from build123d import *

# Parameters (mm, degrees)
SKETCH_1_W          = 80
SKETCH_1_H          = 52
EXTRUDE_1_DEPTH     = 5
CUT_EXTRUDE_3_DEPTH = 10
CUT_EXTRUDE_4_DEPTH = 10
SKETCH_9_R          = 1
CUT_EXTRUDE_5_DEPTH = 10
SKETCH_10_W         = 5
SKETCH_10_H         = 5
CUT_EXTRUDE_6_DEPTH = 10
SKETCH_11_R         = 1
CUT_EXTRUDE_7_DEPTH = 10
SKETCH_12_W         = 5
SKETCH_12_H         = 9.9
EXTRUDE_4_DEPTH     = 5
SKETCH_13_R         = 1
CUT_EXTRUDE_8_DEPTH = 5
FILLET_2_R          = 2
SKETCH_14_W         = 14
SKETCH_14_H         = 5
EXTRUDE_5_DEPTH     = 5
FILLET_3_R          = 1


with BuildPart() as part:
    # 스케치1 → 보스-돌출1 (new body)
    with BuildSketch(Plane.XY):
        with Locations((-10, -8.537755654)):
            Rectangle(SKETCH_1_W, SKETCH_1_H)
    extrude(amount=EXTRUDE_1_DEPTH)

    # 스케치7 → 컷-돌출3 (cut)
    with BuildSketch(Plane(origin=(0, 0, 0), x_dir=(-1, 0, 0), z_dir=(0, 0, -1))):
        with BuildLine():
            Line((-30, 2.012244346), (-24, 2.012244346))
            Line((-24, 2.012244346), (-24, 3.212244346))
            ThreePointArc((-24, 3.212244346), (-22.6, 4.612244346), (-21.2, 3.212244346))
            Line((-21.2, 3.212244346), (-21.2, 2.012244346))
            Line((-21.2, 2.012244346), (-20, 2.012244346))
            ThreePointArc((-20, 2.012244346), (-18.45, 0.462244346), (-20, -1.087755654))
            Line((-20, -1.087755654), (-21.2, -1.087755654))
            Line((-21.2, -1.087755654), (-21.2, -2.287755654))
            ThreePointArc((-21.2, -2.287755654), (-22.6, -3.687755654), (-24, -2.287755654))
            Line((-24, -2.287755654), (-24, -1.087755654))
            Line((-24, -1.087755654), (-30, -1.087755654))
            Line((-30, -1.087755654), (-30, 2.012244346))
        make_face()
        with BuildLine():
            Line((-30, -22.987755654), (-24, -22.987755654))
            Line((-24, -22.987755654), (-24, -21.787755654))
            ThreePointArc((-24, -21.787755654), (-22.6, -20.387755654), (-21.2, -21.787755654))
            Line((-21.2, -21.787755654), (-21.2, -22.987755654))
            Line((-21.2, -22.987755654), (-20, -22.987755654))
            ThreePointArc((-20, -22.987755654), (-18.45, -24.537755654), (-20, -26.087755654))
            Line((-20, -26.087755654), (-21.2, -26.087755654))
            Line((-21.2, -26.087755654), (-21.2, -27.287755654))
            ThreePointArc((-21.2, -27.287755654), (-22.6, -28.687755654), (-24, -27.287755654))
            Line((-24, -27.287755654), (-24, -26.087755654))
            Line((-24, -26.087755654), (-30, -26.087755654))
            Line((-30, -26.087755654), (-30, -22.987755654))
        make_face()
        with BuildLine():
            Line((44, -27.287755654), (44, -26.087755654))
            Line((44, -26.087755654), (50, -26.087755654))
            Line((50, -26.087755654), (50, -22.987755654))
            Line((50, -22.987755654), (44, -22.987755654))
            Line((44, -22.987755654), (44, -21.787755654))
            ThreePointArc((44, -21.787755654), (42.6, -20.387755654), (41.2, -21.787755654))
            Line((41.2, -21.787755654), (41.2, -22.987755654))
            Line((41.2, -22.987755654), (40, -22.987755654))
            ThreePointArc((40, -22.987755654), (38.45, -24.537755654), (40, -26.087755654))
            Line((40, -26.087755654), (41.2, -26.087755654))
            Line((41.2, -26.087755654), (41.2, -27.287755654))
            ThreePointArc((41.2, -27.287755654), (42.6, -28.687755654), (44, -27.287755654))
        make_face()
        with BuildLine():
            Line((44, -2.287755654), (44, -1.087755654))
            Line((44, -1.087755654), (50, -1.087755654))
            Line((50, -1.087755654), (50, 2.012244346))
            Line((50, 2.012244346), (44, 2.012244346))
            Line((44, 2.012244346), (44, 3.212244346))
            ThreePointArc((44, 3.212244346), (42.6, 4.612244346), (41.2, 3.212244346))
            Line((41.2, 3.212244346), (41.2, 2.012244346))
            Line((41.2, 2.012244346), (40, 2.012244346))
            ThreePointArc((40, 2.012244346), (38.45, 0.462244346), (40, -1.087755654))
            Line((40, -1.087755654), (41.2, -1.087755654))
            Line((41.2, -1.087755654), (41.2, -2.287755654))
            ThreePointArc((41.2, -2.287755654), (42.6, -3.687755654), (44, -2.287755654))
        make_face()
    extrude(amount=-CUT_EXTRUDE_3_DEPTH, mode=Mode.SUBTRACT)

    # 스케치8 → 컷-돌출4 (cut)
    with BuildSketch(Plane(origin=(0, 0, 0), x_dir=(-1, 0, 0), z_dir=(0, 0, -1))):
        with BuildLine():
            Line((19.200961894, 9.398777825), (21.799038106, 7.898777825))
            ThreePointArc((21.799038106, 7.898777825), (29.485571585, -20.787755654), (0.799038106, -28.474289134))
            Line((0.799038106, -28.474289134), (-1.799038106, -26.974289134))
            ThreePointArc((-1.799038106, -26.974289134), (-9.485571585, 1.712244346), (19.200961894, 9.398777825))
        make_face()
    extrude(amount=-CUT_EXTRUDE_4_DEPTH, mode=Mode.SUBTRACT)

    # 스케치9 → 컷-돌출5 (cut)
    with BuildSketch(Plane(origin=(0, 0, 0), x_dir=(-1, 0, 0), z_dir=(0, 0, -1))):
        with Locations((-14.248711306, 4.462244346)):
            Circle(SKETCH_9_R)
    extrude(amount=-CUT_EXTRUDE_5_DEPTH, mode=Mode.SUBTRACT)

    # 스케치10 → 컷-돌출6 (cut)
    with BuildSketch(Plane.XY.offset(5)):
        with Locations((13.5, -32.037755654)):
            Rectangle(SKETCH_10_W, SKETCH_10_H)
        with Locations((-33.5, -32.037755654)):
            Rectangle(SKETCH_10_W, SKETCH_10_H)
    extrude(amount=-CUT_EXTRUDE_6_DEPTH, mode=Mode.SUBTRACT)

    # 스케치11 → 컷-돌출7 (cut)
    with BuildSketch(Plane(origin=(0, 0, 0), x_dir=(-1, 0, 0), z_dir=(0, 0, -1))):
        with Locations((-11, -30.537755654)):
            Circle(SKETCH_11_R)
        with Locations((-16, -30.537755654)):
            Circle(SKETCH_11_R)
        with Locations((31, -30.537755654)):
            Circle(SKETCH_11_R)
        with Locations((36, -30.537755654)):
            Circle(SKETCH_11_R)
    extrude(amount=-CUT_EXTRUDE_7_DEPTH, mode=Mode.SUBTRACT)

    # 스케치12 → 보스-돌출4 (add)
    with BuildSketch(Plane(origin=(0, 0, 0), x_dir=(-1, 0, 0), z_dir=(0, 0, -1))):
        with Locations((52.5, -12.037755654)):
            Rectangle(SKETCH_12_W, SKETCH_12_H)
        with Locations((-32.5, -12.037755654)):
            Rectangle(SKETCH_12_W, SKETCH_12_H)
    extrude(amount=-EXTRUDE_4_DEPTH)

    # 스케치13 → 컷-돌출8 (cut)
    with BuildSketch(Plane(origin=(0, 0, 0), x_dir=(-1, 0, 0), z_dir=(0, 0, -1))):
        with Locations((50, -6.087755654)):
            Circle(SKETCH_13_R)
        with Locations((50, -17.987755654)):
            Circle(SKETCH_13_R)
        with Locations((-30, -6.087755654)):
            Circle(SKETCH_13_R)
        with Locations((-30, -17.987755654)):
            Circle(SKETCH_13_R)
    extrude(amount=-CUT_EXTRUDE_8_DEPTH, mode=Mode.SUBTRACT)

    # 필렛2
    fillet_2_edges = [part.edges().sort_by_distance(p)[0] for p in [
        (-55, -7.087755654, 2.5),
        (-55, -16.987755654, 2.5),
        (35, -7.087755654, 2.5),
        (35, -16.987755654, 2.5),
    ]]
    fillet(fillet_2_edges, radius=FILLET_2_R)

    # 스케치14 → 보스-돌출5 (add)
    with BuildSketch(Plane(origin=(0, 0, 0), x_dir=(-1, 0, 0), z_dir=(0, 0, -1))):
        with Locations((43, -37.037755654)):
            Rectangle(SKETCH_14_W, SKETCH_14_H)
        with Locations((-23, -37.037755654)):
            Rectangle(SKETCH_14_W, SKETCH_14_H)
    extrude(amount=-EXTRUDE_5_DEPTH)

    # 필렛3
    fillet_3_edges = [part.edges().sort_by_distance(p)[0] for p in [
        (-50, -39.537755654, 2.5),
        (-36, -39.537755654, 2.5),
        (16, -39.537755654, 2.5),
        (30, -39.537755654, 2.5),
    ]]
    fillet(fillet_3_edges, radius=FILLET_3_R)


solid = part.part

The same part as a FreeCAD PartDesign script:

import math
import FreeCAD as App
import Part
import Sketcher
from FreeCAD import Vector
Q = App.Units.Quantity


def edges_at(feature, points):
    """Names of the edges that pass closest to the given points."""
    edges = feature.Shape.Edges
    near = lambda p: min(range(len(edges)), key=lambda i: edges[i].distToShape(Part.Vertex(*p))[0])
    return sorted({f"Edge{near(p) + 1}" for p in points})


def add_polygon(sketch, points):
    """Adds a closed chain of lines whose ends are joined by coincident constraints."""
    first, n = sketch.GeometryCount, len(points)
    for a, b in zip(points, points[1:] + points[:1]):
        sketch.addGeometry(Part.LineSegment(App.Vector(*a, 0), App.Vector(*b, 0)), False)
    for i in range(n):
        sketch.addConstraint(Sketcher.Constraint("Coincident", first + i, 2, first + (i + 1) % n, 1))

doc = App.newDocument("Part")
body = doc.addObject("PartDesign::Body", "Body")

# Sketch on XY plane
sketch1 = body.newObject("Sketcher::SketchObject", "Sketch")
sketch1.AttachmentSupport = (doc.getObject("XY_Plane"), [""])
sketch1.MapMode = "FlatFace"
add_polygon(sketch1, [(-50, 17), (-50, -35), (30, -35), (30, 17)])  # lines 0-3
sketch1.addConstraint(Sketcher.Constraint("Vertical", 0))
sketch1.addConstraint(Sketcher.Constraint("Horizontal", 1))
sketch1.addConstraint(Sketcher.Constraint("Vertical", 2))
sketch1.addConstraint(Sketcher.Constraint("Horizontal", 3))
sketch1.addConstraint(Sketcher.Constraint("DistanceX", 1, 1, 1, 2, Q("80 mm")))
sketch1.addConstraint(Sketcher.Constraint("DistanceY", 0, 2, 0, 1, Q("52 mm")))
sketch1.addConstraint(Sketcher.Constraint("DistanceX", 0, 2, -1, 1, Q("50 mm")))
sketch1.addConstraint(Sketcher.Constraint("DistanceY", 0, 2, -1, 1, Q("34.537756 mm")))
pad1 = body.newObject("PartDesign::Pad", "Pad")
pad1.Profile = sketch1
pad1.Length = 5

# Sketch on XY plane
sketch2 = body.newObject("Sketcher::SketchObject", "Sketch001")
sketch2.AttachmentSupport = (doc.getObject("XY_Plane"), [""])
sketch2.MapMode = "FlatFace"
sketch2.addGeometry(Part.LineSegment(Vector(24, 2, 0), Vector(30, 2, 0)), False)
sketch2.addGeometry(Part.LineSegment(Vector(30, 2, 0), Vector(30, -1.1, 0)), False)
sketch2.addGeometry(Part.LineSegment(Vector(30, -1.1, 0), Vector(24, -1.1, 0)), False)
sketch2.addGeometry(Part.LineSegment(Vector(24, -1.1, 0), Vector(24, -2.3, 0)), False)
sketch2.addGeometry(Part.ArcOfCircle(Part.Circle(Vector(22.6, -2.3, 0), Vector(0, 0, 1), 1.4), math.radians(180), math.radians(360)), False)
sketch2.addGeometry(Part.LineSegment(Vector(21.2, -2.3, 0), Vector(21.2, -1.1, 0)), False)
sketch2.addGeometry(Part.LineSegment(Vector(21.2, -1.1, 0), Vector(20, -1.1, 0)), False)
sketch2.addGeometry(Part.ArcOfCircle(Part.Circle(Vector(20, 0.5, 0), Vector(0, 0, 1), 1.6), math.radians(90), math.radians(270)), False)
sketch2.addGeometry(Part.LineSegment(Vector(20, 2, 0), Vector(21.2, 2, 0)), False)
sketch2.addGeometry(Part.LineSegment(Vector(21.2, 2, 0), Vector(21.2, 3.2, 0)), False)
sketch2.addGeometry(Part.ArcOfCircle(Part.Circle(Vector(22.6, 3.2, 0), Vector(0, 0, 1), 1.4), math.radians(0), math.radians(180)), False)
sketch2.addGeometry(Part.LineSegment(Vector(24, 3.2, 0), Vector(24, 2, 0)), False)
sketch2.addGeometry(Part.LineSegment(Vector(24, -23, 0), Vector(30, -23, 0)), False)
sketch2.addGeometry(Part.LineSegment(Vector(30, -23, 0), Vector(30, -26.1, 0)), False)
sketch2.addGeometry(Part.LineSegment(Vector(30, -26.1, 0), Vector(24, -26.1, 0)), False)
sketch2.addGeometry(Part.LineSegment(Vector(24, -26.1, 0), Vector(24, -27.3, 0)), False)
sketch2.addGeometry(Part.ArcOfCircle(Part.Circle(Vector(22.6, -27.3, 0), Vector(0, 0, 1), 1.4), math.radians(180), math.radians(360)), False)
sketch2.addGeometry(Part.LineSegment(Vector(21.2, -27.3, 0), Vector(21.2, -26.1, 0)), False)
sketch2.addGeometry(Part.LineSegment(Vector(21.2, -26.1, 0), Vector(20, -26.1, 0)), False)
sketch2.addGeometry(Part.ArcOfCircle(Part.Circle(Vector(20, -24.5, 0), Vector(0, 0, 1), 1.6), math.radians(90), math.radians(270)), False)
sketch2.addGeometry(Part.LineSegment(Vector(20, -23, 0), Vector(21.2, -23, 0)), False)
sketch2.addGeometry(Part.LineSegment(Vector(21.2, -23, 0), Vector(21.2, -21.8, 0)), False)
sketch2.addGeometry(Part.ArcOfCircle(Part.Circle(Vector(22.6, -21.8, 0), Vector(0, 0, 1), 1.4), math.radians(0), math.radians(180)), False)
sketch2.addGeometry(Part.LineSegment(Vector(24, -21.8, 0), Vector(24, -23, 0)), False)
sketch2.addGeometry(Part.LineSegment(Vector(-44, -27.3, 0), Vector(-44, -26.1, 0)), False)
sketch2.addGeometry(Part.LineSegment(Vector(-44, -26.1, 0), Vector(-50, -26.1, 0)), False)
sketch2.addGeometry(Part.LineSegment(Vector(-50, -26.1, 0), Vector(-50, -23, 0)), False)
sketch2.addGeometry(Part.LineSegment(Vector(-50, -23, 0), Vector(-44, -23, 0)), False)
sketch2.addGeometry(Part.LineSegment(Vector(-44, -23, 0), Vector(-44, -21.8, 0)), False)
sketch2.addGeometry(Part.ArcOfCircle(Part.Circle(Vector(-42.6, -21.8, 0), Vector(0, 0, 1), 1.4), math.radians(0), math.radians(180)), False)
sketch2.addGeometry(Part.LineSegment(Vector(-41.2, -21.8, 0), Vector(-41.2, -23, 0)), False)
sketch2.addGeometry(Part.LineSegment(Vector(-41.2, -23, 0), Vector(-40, -23, 0)), False)
sketch2.addGeometry(Part.ArcOfCircle(Part.Circle(Vector(-40, -24.5, 0), Vector(0, 0, 1), 1.6), math.radians(-90), math.radians(90)), False)
sketch2.addGeometry(Part.LineSegment(Vector(-40, -26.1, 0), Vector(-41.2, -26.1, 0)), False)
sketch2.addGeometry(Part.LineSegment(Vector(-41.2, -26.1, 0), Vector(-41.2, -27.3, 0)), False)
sketch2.addGeometry(Part.ArcOfCircle(Part.Circle(Vector(-42.6, -27.3, 0), Vector(0, 0, 1), 1.4), math.radians(180), math.radians(360)), False)
sketch2.addGeometry(Part.LineSegment(Vector(-44, -2.3, 0), Vector(-44, -1.1, 0)), False)
sketch2.addGeometry(Part.LineSegment(Vector(-44, -1.1, 0), Vector(-50, -1.1, 0)), False)
sketch2.addGeometry(Part.LineSegment(Vector(-50, -1.1, 0), Vector(-50, 2, 0)), False)
sketch2.addGeometry(Part.LineSegment(Vector(-50, 2, 0), Vector(-44, 2, 0)), False)
sketch2.addGeometry(Part.LineSegment(Vector(-44, 2, 0), Vector(-44, 3.2, 0)), False)
sketch2.addGeometry(Part.ArcOfCircle(Part.Circle(Vector(-42.6, 3.2, 0), Vector(0, 0, 1), 1.4), math.radians(0), math.radians(180)), False)
sketch2.addGeometry(Part.LineSegment(Vector(-41.2, 3.2, 0), Vector(-41.2, 2, 0)), False)
sketch2.addGeometry(Part.LineSegment(Vector(-41.2, 2, 0), Vector(-40, 2, 0)), False)
sketch2.addGeometry(Part.ArcOfCircle(Part.Circle(Vector(-40, 0.5, 0), Vector(0, 0, 1), 1.6), math.radians(-90), math.radians(90)), False)
sketch2.addGeometry(Part.LineSegment(Vector(-40, -1.1, 0), Vector(-41.2, -1.1, 0)), False)
sketch2.addGeometry(Part.LineSegment(Vector(-41.2, -1.1, 0), Vector(-41.2, -2.3, 0)), False)
sketch2.addGeometry(Part.ArcOfCircle(Part.Circle(Vector(-42.6, -2.3, 0), Vector(0, 0, 1), 1.4), math.radians(180), math.radians(360)), False)
sketch2.addConstraint(Sketcher.Constraint("Coincident", 0, 2, 1, 1))
sketch2.addConstraint(Sketcher.Constraint("Coincident", 1, 2, 2, 1))
sketch2.addConstraint(Sketcher.Constraint("Coincident", 2, 2, 3, 1))
sketch2.addConstraint(Sketcher.Constraint("Tangent", 3, 2, 4, 2))
sketch2.addConstraint(Sketcher.Constraint("Tangent", 4, 1, 5, 1))
sketch2.addConstraint(Sketcher.Constraint("Coincident", 5, 2, 6, 1))
sketch2.addConstraint(Sketcher.Constraint("Tangent", 6, 2, 7, 2))
sketch2.addConstraint(Sketcher.Constraint("Tangent", 7, 1, 8, 1))
sketch2.addConstraint(Sketcher.Constraint("Coincident", 8, 2, 9, 1))
sketch2.addConstraint(Sketcher.Constraint("Tangent", 9, 2, 10, 2))
sketch2.addConstraint(Sketcher.Constraint("Tangent", 10, 1, 11, 1))
sketch2.addConstraint(Sketcher.Constraint("Coincident", 11, 2, 0, 1))
sketch2.addConstraint(Sketcher.Constraint("Coincident", 12, 2, 13, 1))
sketch2.addConstraint(Sketcher.Constraint("Coincident", 13, 2, 14, 1))
sketch2.addConstraint(Sketcher.Constraint("Coincident", 14, 2, 15, 1))
sketch2.addConstraint(Sketcher.Constraint("Tangent", 15, 2, 16, 2))
sketch2.addConstraint(Sketcher.Constraint("Tangent", 16, 1, 17, 1))
sketch2.addConstraint(Sketcher.Constraint("Coincident", 17, 2, 18, 1))
sketch2.addConstraint(Sketcher.Constraint("Tangent", 18, 2, 19, 2))
sketch2.addConstraint(Sketcher.Constraint("Tangent", 19, 1, 20, 1))
sketch2.addConstraint(Sketcher.Constraint("Coincident", 20, 2, 21, 1))
sketch2.addConstraint(Sketcher.Constraint("Tangent", 21, 2, 22, 2))
sketch2.addConstraint(Sketcher.Constraint("Tangent", 22, 1, 23, 1))
sketch2.addConstraint(Sketcher.Constraint("Coincident", 23, 2, 12, 1))
sketch2.addConstraint(Sketcher.Constraint("Coincident", 24, 2, 25, 1))
sketch2.addConstraint(Sketcher.Constraint("Coincident", 25, 2, 26, 1))
sketch2.addConstraint(Sketcher.Constraint("Coincident", 26, 2, 27, 1))
sketch2.addConstraint(Sketcher.Constraint("Coincident", 27, 2, 28, 1))
sketch2.addConstraint(Sketcher.Constraint("Tangent", 28, 2, 29, 2))
sketch2.addConstraint(Sketcher.Constraint("Tangent", 29, 1, 30, 1))
sketch2.addConstraint(Sketcher.Constraint("Coincident", 30, 2, 31, 1))
sketch2.addConstraint(Sketcher.Constraint("Tangent", 31, 2, 32, 2))
sketch2.addConstraint(Sketcher.Constraint("Tangent", 32, 1, 33, 1))
sketch2.addConstraint(Sketcher.Constraint("Coincident", 33, 2, 34, 1))
sketch2.addConstraint(Sketcher.Constraint("Tangent", 34, 2, 35, 2))
sketch2.addConstraint(Sketcher.Constraint("Tangent", 35, 1, 24, 1))
sketch2.addConstraint(Sketcher.Constraint("Coincident", 36, 2, 37, 1))
sketch2.addConstraint(Sketcher.Constraint("Coincident", 37, 2, 38, 1))
sketch2.addConstraint(Sketcher.Constraint("Coincident", 38, 2, 39, 1))
sketch2.addConstraint(Sketcher.Constraint("Coincident", 39, 2, 40, 1))
sketch2.addConstraint(Sketcher.Constraint("Tangent", 40, 2, 41, 2))
sketch2.addConstraint(Sketcher.Constraint("Tangent", 41, 1, 42, 1))
sketch2.addConstraint(Sketcher.Constraint("Coincident", 42, 2, 43, 1))
sketch2.addConstraint(Sketcher.Constraint("Tangent", 43, 2, 44, 2))
sketch2.addConstraint(Sketcher.Constraint("Tangent", 44, 1, 45, 1))
sketch2.addConstraint(Sketcher.Constraint("Coincident", 45, 2, 46, 1))
sketch2.addConstraint(Sketcher.Constraint("Tangent", 46, 2, 47, 2))
sketch2.addConstraint(Sketcher.Constraint("Tangent", 47, 1, 36, 1))
sketch2.addConstraint(Sketcher.Constraint("Horizontal", 0))
sketch2.addConstraint(Sketcher.Constraint("Vertical", 1))
sketch2.addConstraint(Sketcher.Constraint("Horizontal", 2))
sketch2.addConstraint(Sketcher.Constraint("Vertical", 3))
sketch2.addConstraint(Sketcher.Constraint("Vertical", 5))
sketch2.addConstraint(Sketcher.Constraint("Horizontal", 6))
sketch2.addConstraint(Sketcher.Constraint("Horizontal", 8))
sketch2.addConstraint(Sketcher.Constraint("Vertical", 9))
sketch2.addConstraint(Sketcher.Constraint("Vertical", 11))
sketch2.addConstraint(Sketcher.Constraint("Horizontal", 12))
sketch2.addConstraint(Sketcher.Constraint("Vertical", 13))
sketch2.addConstraint(Sketcher.Constraint("Horizontal", 14))
sketch2.addConstraint(Sketcher.Constraint("Vertical", 15))
sketch2.addConstraint(Sketcher.Constraint("Vertical", 17))
sketch2.addConstraint(Sketcher.Constraint("Horizontal", 18))
sketch2.addConstraint(Sketcher.Constraint("Horizontal", 20))
sketch2.addConstraint(Sketcher.Constraint("Vertical", 21))
sketch2.addConstraint(Sketcher.Constraint("Vertical", 23))
sketch2.addConstraint(Sketcher.Constraint("Vertical", 24))
sketch2.addConstraint(Sketcher.Constraint("Horizontal", 25))
sketch2.addConstraint(Sketcher.Constraint("Vertical", 26))
sketch2.addConstraint(Sketcher.Constraint("Horizontal", 27))
sketch2.addConstraint(Sketcher.Constraint("Vertical", 28))
sketch2.addConstraint(Sketcher.Constraint("Vertical", 30))
sketch2.addConstraint(Sketcher.Constraint("Horizontal", 31))
sketch2.addConstraint(Sketcher.Constraint("Horizontal", 33))
sketch2.addConstraint(Sketcher.Constraint("Vertical", 34))
sketch2.addConstraint(Sketcher.Constraint("Vertical", 36))
sketch2.addConstraint(Sketcher.Constraint("Horizontal", 37))
sketch2.addConstraint(Sketcher.Constraint("Vertical", 38))
sketch2.addConstraint(Sketcher.Constraint("Horizontal", 39))
sketch2.addConstraint(Sketcher.Constraint("Vertical", 40))
sketch2.addConstraint(Sketcher.Constraint("Vertical", 42))
sketch2.addConstraint(Sketcher.Constraint("Horizontal", 43))
sketch2.addConstraint(Sketcher.Constraint("Horizontal", 45))
sketch2.addConstraint(Sketcher.Constraint("Vertical", 46))
sketch2.addConstraint(Sketcher.Constraint("Equal", 4, 10))
sketch2.addConstraint(Sketcher.Constraint("Equal", 10, 16))
sketch2.addConstraint(Sketcher.Constraint("Equal", 7, 19))
sketch2.addConstraint(Sketcher.Constraint("Equal", 16, 22))
sketch2.addConstraint(Sketcher.Constraint("Equal", 22, 29))
sketch2.addConstraint(Sketcher.Constraint("Equal", 19, 32))
sketch2.addConstraint(Sketcher.Constraint("Equal", 29, 35))
sketch2.addConstraint(Sketcher.Constraint("Equal", 35, 41))
sketch2.addConstraint(Sketcher.Constraint("Equal", 32, 44))
sketch2.addConstraint(Sketcher.Constraint("Equal", 41, 47))
sketch2.addConstraint(Sketcher.Constraint("Horizontal", 22, 3, 29, 3))
sketch2.addConstraint(Sketcher.Constraint("Horizontal", 19, 3, 32, 3))
sketch2.addConstraint(Sketcher.Constraint("Horizontal", 16, 3, 35, 3))
sketch2.addConstraint(Sketcher.Constraint("Horizontal", 10, 3, 41, 3))
sketch2.addConstraint(Sketcher.Constraint("Horizontal", 7, 3, 44, 3))
sketch2.addConstraint(Sketcher.Constraint("Horizontal", 4, 3, 47, 3))
sketch2.addConstraint(Sketcher.Constraint("Horizontal", 2, 2, 5, 2))
sketch2.addConstraint(Sketcher.Constraint("Horizontal", 0, 2, 7, 1))
sketch2.addConstraint(Sketcher.Constraint("Horizontal", 14, 2, 17, 2))
sketch2.addConstraint(Sketcher.Constraint("Horizontal", 12, 2, 19, 1))
sketch2.addConstraint(Sketcher.Constraint("Horizontal", 18, 2, 24, 2))
sketch2.addConstraint(Sketcher.Constraint("Horizontal", 23, 2, 26, 2))
sketch2.addConstraint(Sketcher.Constraint("Horizontal", 6, 2, 36, 2))
sketch2.addConstraint(Sketcher.Constraint("Horizontal", 11, 2, 38, 2))
sketch2.addConstraint(Sketcher.Constraint("Vertical", 4, 3, 10, 3))
sketch2.addConstraint(Sketcher.Constraint("Vertical", 10, 3, 16, 3))
sketch2.addConstraint(Sketcher.Constraint("Vertical", 7, 3, 19, 3))
sketch2.addConstraint(Sketcher.Constraint("Vertical", 16, 3, 22, 3))
sketch2.addConstraint(Sketcher.Constraint("Vertical", 29, 3, 35, 3))
sketch2.addConstraint(Sketcher.Constraint("Vertical", 35, 3, 41, 3))
sketch2.addConstraint(Sketcher.Constraint("Vertical", 32, 3, 44, 3))
sketch2.addConstraint(Sketcher.Constraint("Vertical", 41, 3, 47, 3))
sketch2.addConstraint(Sketcher.Constraint("Vertical", 1, 2, 12, 2))
sketch2.addConstraint(Sketcher.Constraint("Vertical", 26, 2, 37, 2))
sketch2.addConstraint(Sketcher.Constraint("Equal", 14, 25))
sketch2.addConstraint(Sketcher.Constraint("Equal", 20, 31))
sketch2.addConstraint(Sketcher.Constraint("Equal", 45, 3))
sketch2.addConstraint(Sketcher.Constraint("Equal", 5, 9))
sketch2.addConstraint(Sketcher.Constraint("Equal", 11, 15))
sketch2.addConstraint(Sketcher.Constraint("Equal", 17, 21))
sketch2.addConstraint(Sketcher.Constraint("Radius", 4, Q("1.4 mm")))
sketch2.addConstraint(Sketcher.Constraint("DistanceX", 0, 1, 0, 2, Q("6 mm")))
sketch2.addConstraint(Sketcher.Constraint("Radius", 7, Q("1.55 mm")))
sketch2.addConstraint(Sketcher.Constraint("DistanceX", 6, 2, 6, 1, Q("1.2 mm")))
sketch2.addConstraint(Sketcher.Constraint("DistanceX", -1, 1, 7, 3, Q("20 mm")))
sketch2.addConstraint(Sketcher.Constraint("DistanceX", 32, 3, -1, 1, Q("40 mm")))
sketch2.addConstraint(Sketcher.Constraint("DistanceY", 16, 3, 4, 3, Q("25 mm")))
sketch2.addConstraint(Sketcher.Constraint("DistanceY", 4, 3, -1, 1, Q("2.287756 mm")))
pocket1 = body.newObject("PartDesign::Pocket", "Pocket")
pocket1.Profile = sketch2
pocket1.Length = 10
pocket1.Reversed = True

# Sketch on XY plane
sketch3 = body.newObject("Sketcher::SketchObject", "Sketch002")
sketch3.AttachmentSupport = (doc.getObject("XY_Plane"), [""])
sketch3.MapMode = "FlatFace"
sketch3.addGeometry(Part.LineSegment(Vector(-21.8, 7.9, 0), Vector(-19.2, 9.4, 0)), False)
sketch3.addGeometry(Part.ArcOfCircle(Part.Circle(Vector(-8.7, -8.8, 0), Vector(0, 0, 1), 21), math.radians(-60), math.radians(120)), False)
sketch3.addGeometry(Part.LineSegment(Vector(1.8, -27, 0), Vector(-0.8, -28.5, 0)), False)
sketch3.addGeometry(Part.ArcOfCircle(Part.Circle(Vector(-11.3, -10.3, 0), Vector(0, 0, 1), 21), math.radians(120), math.radians(300)), False)
sketch3.addConstraint(Sketcher.Constraint("Tangent", 0, 2, 1, 2))
sketch3.addConstraint(Sketcher.Constraint("Tangent", 1, 1, 2, 1))
sketch3.addConstraint(Sketcher.Constraint("Tangent", 2, 2, 3, 2))
sketch3.addConstraint(Sketcher.Constraint("Tangent", 3, 1, 0, 1))
sketch3.addConstraint(Sketcher.Constraint("Equal", 1, 3))
sketch3.addConstraint(Sketcher.Constraint("Radius", 1, Q("21 mm")))
sketch3.addConstraint(Sketcher.Constraint("Angle", 0, Q("30 deg")))
sketch3.addConstraint(Sketcher.Constraint("Distance", 0, Q("3 mm")))
sketch3.addConstraint(Sketcher.Constraint("DistanceX", 1, 3, -1, 1, Q("8.700962 mm")))
sketch3.addConstraint(Sketcher.Constraint("DistanceY", 1, 1, -1, 1, Q("26.974289 mm")))
pocket2 = body.newObject("PartDesign::Pocket", "Pocket001")
pocket2.Profile = sketch3
pocket2.Length = 10
pocket2.Reversed = True

# Sketch on XY plane
sketch4 = body.newObject("Sketcher::SketchObject", "Sketch003")
sketch4.AttachmentSupport = (doc.getObject("XY_Plane"), [""])
sketch4.MapMode = "FlatFace"
sketch4.addGeometry(Part.Circle(Vector(14.2, 4.5, 0), Vector(0, 0, 1), 1), False)
sketch4.addConstraint(Sketcher.Constraint("Diameter", 0, Q("2 mm")))
sketch4.addConstraint(Sketcher.Constraint("DistanceX", -1, 1, 0, 3, Q("14.248711 mm")))
sketch4.addConstraint(Sketcher.Constraint("DistanceY", -1, 1, 0, 3, Q("4.462244 mm")))
pocket3 = body.newObject("PartDesign::Pocket", "Pocket002")
pocket3.Profile = sketch4
pocket3.Length = 10
pocket3.Reversed = True

# Sketch on XY plane
sketch5 = body.newObject("Sketcher::SketchObject", "Sketch004")
sketch5.AttachmentSupport = (doc.getObject("XY_Plane"), [""])
sketch5.MapMode = "FlatFace"
sketch5.AttachmentOffset = App.Placement(Vector(0, 0, 5), App.Rotation())
add_polygon(sketch5, [(11, -30), (11, -35), (16, -35), (16, -30)])  # lines 0-3
add_polygon(sketch5, [(-36, -30), (-36, -35), (-31, -35), (-31, -30)])  # lines 4-7
sketch5.addConstraint(Sketcher.Constraint("Vertical", 0))
sketch5.addConstraint(Sketcher.Constraint("Horizontal", 1))
sketch5.addConstraint(Sketcher.Constraint("Vertical", 2))
sketch5.addConstraint(Sketcher.Constraint("Horizontal", 3))
sketch5.addConstraint(Sketcher.Constraint("Vertical", 4))
sketch5.addConstraint(Sketcher.Constraint("Horizontal", 5))
sketch5.addConstraint(Sketcher.Constraint("Vertical", 6))
sketch5.addConstraint(Sketcher.Constraint("Horizontal", 7))
sketch5.addConstraint(Sketcher.Constraint("Horizontal", 1, 2, 4, 2))
sketch5.addConstraint(Sketcher.Constraint("Horizontal", 3, 2, 6, 2))
sketch5.addConstraint(Sketcher.Constraint("Equal", 3, 5))
sketch5.addConstraint(Sketcher.Constraint("Equal", 7, 0))
sketch5.addConstraint(Sketcher.Constraint("DistanceX", 1, 1, 1, 2, Q("5 mm")))
sketch5.addConstraint(Sketcher.Constraint("DistanceX", -1, 1, 0, 2, Q("11 mm")))
sketch5.addConstraint(Sketcher.Constraint("DistanceX", 4, 2, -1, 1, Q("36 mm")))
sketch5.addConstraint(Sketcher.Constraint("DistanceY", 0, 2, -1, 1, Q("34.537756 mm")))
pocket4 = body.newObject("PartDesign::Pocket", "Pocket003")
pocket4.Profile = sketch5
pocket4.Length = 10

# Sketch on XY plane
sketch6 = body.newObject("Sketcher::SketchObject", "Sketch005")
sketch6.AttachmentSupport = (doc.getObject("XY_Plane"), [""])
sketch6.MapMode = "FlatFace"
sketch6.addGeometry(Part.Circle(Vector(11, -30.5, 0), Vector(0, 0, 1), 1), False)
sketch6.addGeometry(Part.Circle(Vector(16, -30.5, 0), Vector(0, 0, 1), 1), False)
sketch6.addGeometry(Part.Circle(Vector(-31, -30.5, 0), Vector(0, 0, 1), 1), False)
sketch6.addGeometry(Part.Circle(Vector(-36, -30.5, 0), Vector(0, 0, 1), 1), False)
sketch6.addConstraint(Sketcher.Constraint("Equal", 0, 1))
sketch6.addConstraint(Sketcher.Constraint("Equal", 1, 2))
sketch6.addConstraint(Sketcher.Constraint("Equal", 2, 3))
sketch6.addConstraint(Sketcher.Constraint("Horizontal", 0, 3, 1, 3))
sketch6.addConstraint(Sketcher.Constraint("Horizontal", 1, 3, 2, 3))
sketch6.addConstraint(Sketcher.Constraint("Horizontal", 2, 3, 3, 3))
sketch6.addConstraint(Sketcher.Constraint("Diameter", 0, Q("2 mm")))
sketch6.addConstraint(Sketcher.Constraint("DistanceX", -1, 1, 0, 3, Q("11 mm")))
sketch6.addConstraint(Sketcher.Constraint("DistanceX", -1, 1, 1, 3, Q("16 mm")))
sketch6.addConstraint(Sketcher.Constraint("DistanceX", 2, 3, -1, 1, Q("31 mm")))
sketch6.addConstraint(Sketcher.Constraint("DistanceX", 3, 3, -1, 1, Q("36 mm")))
sketch6.addConstraint(Sketcher.Constraint("DistanceY", 0, 3, -1, 1, Q("30.537756 mm")))
pocket5 = body.newObject("PartDesign::Pocket", "Pocket004")
pocket5.Profile = sketch6
pocket5.Length = 10
pocket5.Reversed = True

# Sketch on XY plane
sketch7 = body.newObject("Sketcher::SketchObject", "Sketch006")
sketch7.AttachmentSupport = (doc.getObject("XY_Plane"), [""])
sketch7.MapMode = "FlatFace"
add_polygon(sketch7, [(-50, -7), (-50, -17), (-55, -17), (-55, -7)])  # lines 0-3
add_polygon(sketch7, [(35, -7), (35, -17), (30, -17), (30, -7)])  # lines 4-7
sketch7.addConstraint(Sketcher.Constraint("Vertical", 0))
sketch7.addConstraint(Sketcher.Constraint("Horizontal", 1))
sketch7.addConstraint(Sketcher.Constraint("Vertical", 2))
sketch7.addConstraint(Sketcher.Constraint("Horizontal", 3))
sketch7.addConstraint(Sketcher.Constraint("Vertical", 4))
sketch7.addConstraint(Sketcher.Constraint("Horizontal", 5))
sketch7.addConstraint(Sketcher.Constraint("Vertical", 6))
sketch7.addConstraint(Sketcher.Constraint("Horizontal", 7))
sketch7.addConstraint(Sketcher.Constraint("Horizontal", 1, 2, 4, 2))
sketch7.addConstraint(Sketcher.Constraint("Horizontal", 3, 2, 6, 2))
sketch7.addConstraint(Sketcher.Constraint("Equal", 3, 5))
sketch7.addConstraint(Sketcher.Constraint("DistanceX", 1, 2, 1, 1, Q("5 mm")))
sketch7.addConstraint(Sketcher.Constraint("DistanceY", 0, 2, 0, 1, Q("9.9 mm")))
sketch7.addConstraint(Sketcher.Constraint("DistanceX", 0, 2, -1, 1, Q("50 mm")))
sketch7.addConstraint(Sketcher.Constraint("DistanceX", -1, 1, 4, 2, Q("35 mm")))
sketch7.addConstraint(Sketcher.Constraint("DistanceY", 0, 2, -1, 1, Q("16.987756 mm")))
pad2 = body.newObject("PartDesign::Pad", "Pad001")
pad2.Profile = sketch7
pad2.Length = 5

# Sketch on XY plane
sketch8 = body.newObject("Sketcher::SketchObject", "Sketch007")
sketch8.AttachmentSupport = (doc.getObject("XY_Plane"), [""])
sketch8.MapMode = "FlatFace"
sketch8.addGeometry(Part.Circle(Vector(-50, -6.1, 0), Vector(0, 0, 1), 1), False)
sketch8.addGeometry(Part.Circle(Vector(-50, -18, 0), Vector(0, 0, 1), 1), False)
sketch8.addGeometry(Part.Circle(Vector(30, -6.1, 0), Vector(0, 0, 1), 1), False)
sketch8.addGeometry(Part.Circle(Vector(30, -18, 0), Vector(0, 0, 1), 1), False)
sketch8.addConstraint(Sketcher.Constraint("Equal", 0, 1))
sketch8.addConstraint(Sketcher.Constraint("Equal", 1, 2))
sketch8.addConstraint(Sketcher.Constraint("Equal", 2, 3))
sketch8.addConstraint(Sketcher.Constraint("Horizontal", 0, 3, 2, 3))
sketch8.addConstraint(Sketcher.Constraint("Horizontal", 1, 3, 3, 3))
sketch8.addConstraint(Sketcher.Constraint("Vertical", 0, 3, 1, 3))
sketch8.addConstraint(Sketcher.Constraint("Vertical", 2, 3, 3, 3))
sketch8.addConstraint(Sketcher.Constraint("Diameter", 0, Q("2 mm")))
sketch8.addConstraint(Sketcher.Constraint("DistanceX", 0, 3, -1, 1, Q("50 mm")))
sketch8.addConstraint(Sketcher.Constraint("DistanceX", -1, 1, 2, 3, Q("30 mm")))
sketch8.addConstraint(Sketcher.Constraint("DistanceY", 1, 3, 0, 3, Q("11.9 mm")))
sketch8.addConstraint(Sketcher.Constraint("DistanceY", 0, 3, -1, 1, Q("6.087756 mm")))
pocket6 = body.newObject("PartDesign::Pocket", "Pocket005")
pocket6.Profile = sketch8
pocket6.Length = 5
pocket6.Reversed = True
doc.recompute()

fillet = body.newObject("PartDesign::Fillet", "Fillet")
fillet.Base = (pocket6, edges_at(pocket6, [
    (-55, -7.088, 2.5),
    (-55, -16.988, 2.5),
    (35, -7.088, 2.5),
    (35, -16.988, 2.5),
]))
fillet.Radius = 2

# Sketch on XY plane
sketch9 = body.newObject("Sketcher::SketchObject", "Sketch008")
sketch9.AttachmentSupport = (doc.getObject("XY_Plane"), [""])
sketch9.MapMode = "FlatFace"
add_polygon(sketch9, [(-36, -35), (-36, -40), (-50, -40), (-50, -35)])  # lines 0-3
add_polygon(sketch9, [(30, -35), (30, -40), (16, -40), (16, -35)])  # lines 4-7
sketch9.addConstraint(Sketcher.Constraint("Vertical", 0))
sketch9.addConstraint(Sketcher.Constraint("Horizontal", 1))
sketch9.addConstraint(Sketcher.Constraint("Vertical", 2))
sketch9.addConstraint(Sketcher.Constraint("Horizontal", 3))
sketch9.addConstraint(Sketcher.Constraint("Vertical", 4))
sketch9.addConstraint(Sketcher.Constraint("Horizontal", 5))
sketch9.addConstraint(Sketcher.Constraint("Vertical", 6))
sketch9.addConstraint(Sketcher.Constraint("Horizontal", 7))
sketch9.addConstraint(Sketcher.Constraint("Horizontal", 1, 2, 4, 2))
sketch9.addConstraint(Sketcher.Constraint("Horizontal", 3, 2, 6, 2))
sketch9.addConstraint(Sketcher.Constraint("Equal", 3, 5))
sketch9.addConstraint(Sketcher.Constraint("DistanceX", 1, 2, 1, 1, Q("14 mm")))
sketch9.addConstraint(Sketcher.Constraint("DistanceY", 0, 2, 0, 1, Q("5 mm")))
sketch9.addConstraint(Sketcher.Constraint("DistanceX", 0, 2, -1, 1, Q("36 mm")))
sketch9.addConstraint(Sketcher.Constraint("DistanceX", -1, 1, 4, 2, Q("30 mm")))
sketch9.addConstraint(Sketcher.Constraint("DistanceY", 0, 2, -1, 1, Q("39.537756 mm")))
pad3 = body.newObject("PartDesign::Pad", "Pad002")
pad3.Profile = sketch9
pad3.Length = 5
doc.recompute()

fillet2 = body.newObject("PartDesign::Fillet", "Fillet001")
fillet2.Base = (pad3, edges_at(pad3, [
    (-50, -39.538, 2.5),
    (-36, -39.538, 2.5),
    (16, -39.538, 2.5),
    (30, -39.538, 2.5),
]))
fillet2.Radius = 1

doc.recompute()
